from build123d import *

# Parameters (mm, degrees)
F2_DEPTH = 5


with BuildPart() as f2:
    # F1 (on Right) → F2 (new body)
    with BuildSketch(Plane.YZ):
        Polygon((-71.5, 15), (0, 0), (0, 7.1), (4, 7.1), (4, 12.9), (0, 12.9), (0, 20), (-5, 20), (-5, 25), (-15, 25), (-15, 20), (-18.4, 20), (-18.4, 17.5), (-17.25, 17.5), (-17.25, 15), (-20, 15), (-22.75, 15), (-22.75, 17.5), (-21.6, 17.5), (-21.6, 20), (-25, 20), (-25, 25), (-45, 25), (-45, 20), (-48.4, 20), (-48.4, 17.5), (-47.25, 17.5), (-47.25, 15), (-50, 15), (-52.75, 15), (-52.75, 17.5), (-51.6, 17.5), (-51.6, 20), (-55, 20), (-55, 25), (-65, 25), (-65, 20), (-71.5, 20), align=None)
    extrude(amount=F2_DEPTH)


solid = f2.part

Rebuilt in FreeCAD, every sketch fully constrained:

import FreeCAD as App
import Part
import Sketcher

V = App.Vector
Q = App.Units.Quantity


def add_polygon(sketch, points):
    """Adds a closed chain of lines whose ends are joined by coincident constraints."""
    first, n = sketch.GeometryCount, len(points)
    for a, b in zip(points, points[1:] + points[:1]):
        sketch.addGeometry(Part.LineSegment(App.Vector(*a, 0), App.Vector(*b, 0)), False)
    for i in range(n):
        sketch.addConstraint(Sketcher.Constraint("Coincident", first + i, 2, first + (i + 1) % n, 1))

doc = App.newDocument("Part")
body = doc.addObject("PartDesign::Body", "Body")

# Sketch on YZ plane
sketch1 = body.newObject("Sketcher::SketchObject", "Sketch")
sketch1.AttachmentSupport = (doc.getObject("YZ_Plane"), [""])
sketch1.MapMode = "FlatFace"
add_polygon(sketch1, [(-71.5, 15), (0, 0), (0, 7.1), (4, 7.1), (4, 12.9), (0, 12.9), (0, 20), (-5, 20), (-5, 25), (-15, 25), (-15, 20), (-18.4, 20), (-18.4, 17.5), (-17.2, 17.5), (-17.2, 15), (-22.8, 15), (-22.8, 17.5), (-21.6, 17.5), (-21.6, 20), (-25, 20), (-25, 25), (-45, 25), (-45, 20), (-48.4, 20), (-48.4, 17.5), (-47.2, 17.5), (-47.2, 15), (-52.8, 15), (-52.8, 17.5), (-51.6, 17.5), (-51.6, 20), (-55, 20), (-55, 25), (-65, 25), (-65, 20), (-71.5, 20)])  # lines 0-35
sketch1.addConstraint([
    Sketcher.Constraint("Vertical", 1),
    Sketcher.Constraint("Horizontal", 2),
    Sketcher.Constraint("Vertical", 3),
    Sketcher.Constraint("Horizontal", 4),
    Sketcher.Constraint("Vertical", 5),
    Sketcher.Constraint("Horizontal", 6),
    Sketcher.Constraint("Vertical", 7),
    Sketcher.Constraint("Horizontal", 8),
    Sketcher.Constraint("Vertical", 9),
    Sketcher.Constraint("Horizontal", 10),
    Sketcher.Constraint("Vertical", 11),
    Sketcher.Constraint("Horizontal", 12),
    Sketcher.Constraint("Vertical", 13),
    Sketcher.Constraint("Horizontal", 14),
    Sketcher.Constraint("Vertical", 15),
    Sketcher.Constraint("Horizontal", 16),
    Sketcher.Constraint("Vertical", 17),
    Sketcher.Constraint("Horizontal", 18),
    Sketcher.Constraint("Vertical", 19),
    Sketcher.Constraint("Horizontal", 20),
    Sketcher.Constraint("Vertical", 21),
    Sketcher.Constraint("Horizontal", 22),
    Sketcher.Constraint("Vertical", 23),
    Sketcher.Constraint("Horizontal", 24),
    Sketcher.Constraint("Vertical", 25),
    Sketcher.Constraint("Horizontal", 26),
    Sketcher.Constraint("Vertical", 27),
    Sketcher.Constraint("Horizontal", 28),
    Sketcher.Constraint("Vertical", 29),
    Sketcher.Constraint("Horizontal", 30),
    Sketcher.Constraint("Vertical", 31),
    Sketcher.Constraint("Horizontal", 32),
    Sketcher.Constraint("Vertical", 33),
    Sketcher.Constraint("Horizontal", 34),
    Sketcher.Constraint("Vertical", 35),
    Sketcher.Constraint("Coincident", 0, 2, -1, 1),
    Sketcher.Constraint("PointOnObject", 4, 2, -2),
    Sketcher.Constraint("Horizontal", 6, 2, 9, 2),
    Sketcher.Constraint("Horizontal", 12, 2, 15, 2),
    Sketcher.Constraint("Horizontal", 10, 2, 17, 2),
    Sketcher.Constraint("Horizontal", 8, 2, 19, 2),
    Sketcher.Constraint("Horizontal", 18, 2, 21, 2),
    Sketcher.Constraint("Horizontal", 16, 2, 23, 2),
    Sketcher.Constraint("Horizontal", 14, 2, 25, 2),
    Sketcher.Constraint("Horizontal", 24, 2, 27, 2),
    Sketcher.Constraint("Horizontal", 22, 2, 29, 2),
    Sketcher.Constraint("Horizontal", 20, 2, 31, 2),
    Sketcher.Constraint("Horizontal", 30, 2, 33, 2),
    Sketcher.Constraint("Horizontal", 26, 2, 35, 2),
    Sketcher.Constraint("Equal", 12, 16),
    Sketcher.Constraint("Equal", 10, 18),
    Sketcher.Constraint("Equal", 18, 22),
    Sketcher.Constraint("Equal", 16, 24),
    Sketcher.Constraint("Equal", 14, 26),
    Sketcher.Constraint("Equal", 24, 28),
    Sketcher.Constraint("Equal", 22, 30),
    Sketcher.Constraint("Equal", 8, 32),
    Sketcher.Constraint("Equal", 1, 5),
    Sketcher.Constraint("Equal", 6, 7),
    Sketcher.Constraint("Equal", 11, 13),
    Sketcher.Constraint("Equal", 33, 35),
    Sketcher.Constraint("DistanceX", 2, 1, 2, 2, Q("4 mm")),
    Sketcher.Constraint("DistanceX", 6, 2, 6, 1, Q("5 mm")),
    Sketcher.Constraint("DistanceX", 8, 2, 8, 1, Q("10 mm")),
    Sketcher.Constraint("DistanceX", 20, 2, 20, 1, Q("20 mm")),
    Sketcher.Constraint("DistanceX", 10, 2, 10, 1, Q("3.4 mm")),
    Sketcher.Constraint("DistanceX", 14, 2, 14, 1, Q("5.5 mm")),
    Sketcher.Constraint("DistanceX", 34, 2, 34, 1, Q("6.5 mm")),
    Sketcher.Constraint("DistanceY", 1, 1, 1, 2, Q("7.1 mm")),
    Sketcher.Constraint("DistanceY", 3, 1, 3, 2, Q("5.8 mm")),
    Sketcher.Constraint("DistanceX", 18, 2, -1, 1, Q("25 mm")),
])
pad1 = body.newObject("PartDesign::Pad", "Pad")
pad1.Profile = sketch1
pad1.Length = 5

doc.recompute()
